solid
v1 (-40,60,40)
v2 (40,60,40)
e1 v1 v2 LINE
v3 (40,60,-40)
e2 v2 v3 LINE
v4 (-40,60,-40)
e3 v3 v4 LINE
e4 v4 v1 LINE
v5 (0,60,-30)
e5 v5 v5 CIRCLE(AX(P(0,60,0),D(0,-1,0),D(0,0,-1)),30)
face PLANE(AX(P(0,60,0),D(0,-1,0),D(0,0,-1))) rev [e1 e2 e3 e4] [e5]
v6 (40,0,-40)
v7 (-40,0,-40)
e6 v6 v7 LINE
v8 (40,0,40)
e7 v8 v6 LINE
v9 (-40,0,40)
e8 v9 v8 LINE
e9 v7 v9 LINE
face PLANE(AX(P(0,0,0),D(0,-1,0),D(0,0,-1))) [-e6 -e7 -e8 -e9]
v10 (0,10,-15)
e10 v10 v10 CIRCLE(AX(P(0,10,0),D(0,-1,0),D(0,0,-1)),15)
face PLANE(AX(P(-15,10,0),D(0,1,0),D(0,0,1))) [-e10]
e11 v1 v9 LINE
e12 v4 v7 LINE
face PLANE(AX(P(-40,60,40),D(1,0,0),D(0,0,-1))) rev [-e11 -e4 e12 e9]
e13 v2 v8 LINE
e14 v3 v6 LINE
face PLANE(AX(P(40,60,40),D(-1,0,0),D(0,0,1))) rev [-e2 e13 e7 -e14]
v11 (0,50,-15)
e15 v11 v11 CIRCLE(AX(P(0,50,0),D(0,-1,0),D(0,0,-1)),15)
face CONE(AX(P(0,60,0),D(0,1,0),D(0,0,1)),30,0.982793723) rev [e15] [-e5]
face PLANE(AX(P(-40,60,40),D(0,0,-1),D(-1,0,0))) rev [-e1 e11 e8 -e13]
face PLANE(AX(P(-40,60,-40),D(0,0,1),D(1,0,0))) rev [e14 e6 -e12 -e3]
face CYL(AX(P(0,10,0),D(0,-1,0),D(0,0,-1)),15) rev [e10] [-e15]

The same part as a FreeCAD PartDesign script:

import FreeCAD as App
import Part
import Sketcher

doc = App.newDocument("Part")
params = doc.addObject("Spreadsheet::Sheet", "Params")
for row, (alias, value) in enumerate([
    ("sketch1_width", "80 mm"),
    ("pad1_length", "60 mm"),
    ("sketch2_width", "30 mm"),
    ("sketch2_width2", "15 mm"),
    ("sketch2_height", "40 mm"),
    ("sketch2_height2", "50 mm"),
    ("groove_angle", "360 deg"),
], start=1):
    params.set(f"A{row}", alias)
    params.set(f"B{row}", "=" + value)
    params.setAlias(f"B{row}", alias)

body = doc.addObject("PartDesign::Body", "Body")

sketch1 = body.newObject("Sketcher::SketchObject", "Sketch")
sketch1.AttachmentSupport = (doc.getObject("XZ_Plane"), [""])
sketch1.MapMode = "FlatFace"
sketch1.addGeometry([
    Part.LineSegment(App.Vector(-40, -40, 0), App.Vector(-40, 40, 0)),
    Part.LineSegment(App.Vector(-40, 40, 0), App.Vector(40, 40, 0)),
    Part.LineSegment(App.Vector(40, 40, 0), App.Vector(40, -40, 0)),
    Part.LineSegment(App.Vector(40, -40, 0), App.Vector(-40, -40, 0)),
], False)
sketch1.addConstraint([
    Sketcher.Constraint("Coincident", 0, 2, 1, 1),
    Sketcher.Constraint("Coincident", 1, 2, 2, 1),
    Sketcher.Constraint("Coincident", 2, 2, 3, 1),
    Sketcher.Constraint("Coincident", 3, 2, 0, 1),
    Sketcher.Constraint("Vertical", 0),
    Sketcher.Constraint("Horizontal", 1),
    Sketcher.Constraint("Vertical", 2),
    Sketcher.Constraint("Horizontal", 3),
    Sketcher.Constraint("Symmetric", 0, 2, 2, 2, -1, 1),
    Sketcher.Constraint("Equal", 3, 0),
    Sketcher.Constraint("DistanceX", 1, 1, 1, 2, 80.0),
])
sketch1.setExpression("Constraints[10]", "Params.sketch1_width")
pad1 = body.newObject("PartDesign::Pad", "Pad")
pad1.Profile = sketch1
pad1.setExpression("Length", "Params.pad1_length")
pad1.Reversed = True

sketch2 = body.newObject("Sketcher::SketchObject", "Sketch001")
sketch2.AttachmentSupport = (doc.getObject("XY_Plane"), [""])
sketch2.MapMode = "FlatFace"
sketch2.addGeometry([
    Part.LineSegment(App.Vector(0, 60, 0), App.Vector(-30, 60, 0)),
    Part.LineSegment(App.Vector(-30, 60, 0), App.Vector(-15, 50, 0)),
    Part.LineSegment(App.Vector(-15, 50, 0), App.Vector(-15, 10, 0)),
    Part.LineSegment(App.Vector(-15, 10, 0), App.Vector(0, 10, 0)),
    Part.LineSegment(App.Vector(0, 10, 0), App.Vector(0, 60, 0)),
], False)
sketch2.addConstraint([
    Sketcher.Constraint("Coincident", 0, 2, 1, 1),
    Sketcher.Constraint("Coincident", 1, 2, 2, 1),
    Sketcher.Constraint("Coincident", 2, 2, 3, 1),
    Sketcher.Constraint("Coincident", 3, 2, 4, 1),
    Sketcher.Constraint("Coincident", 4, 2, 0, 1),
    Sketcher.Constraint("Horizontal", 0),
    Sketcher.Constraint("Vertical", 2),
    Sketcher.Constraint("Horizontal", 3),
    Sketcher.Constraint("Vertical", 4),
    Sketcher.Constraint("PointOnObject", 3, 2, -2),
    Sketcher.Constraint("DistanceX", 0, 2, 0, 1, 30.0),
    Sketcher.Constraint("DistanceX", 3, 1, 3, 2, 15.0),
    Sketcher.Constraint("DistanceY", 2, 2, 2, 1, 40.0),
    Sketcher.Constraint("DistanceY", 4, 1, 4, 2, 50.0),
    Sketcher.Constraint("DistanceY", -1, 1, 0, 2, 60.0),
])
sketch2.setExpression("Constraints[10]", "Params.sketch2_width")
sketch2.setExpression("Constraints[11]", "Params.sketch2_width2")
sketch2.setExpression("Constraints[12]", "Params.sketch2_height")
sketch2.setExpression("Constraints[13]", "Params.sketch2_height2")
groove = body.newObject("PartDesign::Groove", "Groove")
groove.Profile = sketch2
groove.ReferenceAxis = (sketch2, ["V_Axis"])
groove.setExpression("Angle", "Params.groove_angle")

doc.recompute()
